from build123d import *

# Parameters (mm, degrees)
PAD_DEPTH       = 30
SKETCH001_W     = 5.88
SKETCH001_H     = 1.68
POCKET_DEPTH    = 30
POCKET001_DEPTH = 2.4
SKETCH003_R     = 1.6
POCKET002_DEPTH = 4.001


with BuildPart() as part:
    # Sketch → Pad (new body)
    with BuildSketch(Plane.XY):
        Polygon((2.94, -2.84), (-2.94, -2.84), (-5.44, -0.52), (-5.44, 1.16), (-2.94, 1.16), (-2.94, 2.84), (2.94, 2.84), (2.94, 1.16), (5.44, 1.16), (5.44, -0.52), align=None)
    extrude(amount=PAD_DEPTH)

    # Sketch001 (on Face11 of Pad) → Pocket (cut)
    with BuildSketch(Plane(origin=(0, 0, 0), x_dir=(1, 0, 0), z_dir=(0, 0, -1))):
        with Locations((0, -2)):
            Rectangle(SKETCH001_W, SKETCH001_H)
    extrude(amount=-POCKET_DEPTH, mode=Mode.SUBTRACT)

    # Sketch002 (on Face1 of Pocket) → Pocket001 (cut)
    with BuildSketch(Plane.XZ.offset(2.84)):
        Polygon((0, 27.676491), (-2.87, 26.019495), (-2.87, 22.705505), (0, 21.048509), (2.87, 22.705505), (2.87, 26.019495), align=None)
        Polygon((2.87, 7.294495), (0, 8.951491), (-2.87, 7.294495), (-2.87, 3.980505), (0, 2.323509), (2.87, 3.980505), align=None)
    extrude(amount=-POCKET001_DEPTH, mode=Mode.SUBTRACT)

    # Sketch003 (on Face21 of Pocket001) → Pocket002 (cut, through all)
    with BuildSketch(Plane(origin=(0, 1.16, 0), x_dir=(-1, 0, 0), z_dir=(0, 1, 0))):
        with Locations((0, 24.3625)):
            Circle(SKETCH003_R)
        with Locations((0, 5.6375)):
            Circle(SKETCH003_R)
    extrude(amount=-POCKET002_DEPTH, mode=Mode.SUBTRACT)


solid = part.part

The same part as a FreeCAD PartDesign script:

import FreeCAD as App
import Part
import Sketcher
Q = App.Units.Quantity

doc = App.newDocument("Part")
body = doc.addObject("PartDesign::Body", "Body")

# Sketch on XY plane
sketch1 = body.newObject("Sketcher::SketchObject", "Sketch")
sketch1.AttachmentSupport = (doc.getObject("XY_Plane"), [""])
sketch1.MapMode = "FlatFace"
sketch1.addGeometry(Part.LineSegment(App.Vector(-2.9, -2.8, 0), App.Vector(2.9, -2.8, 0)), False)
sketch1.addGeometry(Part.LineSegment(App.Vector(2.9, -2.8, 0), App.Vector(5.4, -0.5, 0)), False)
sketch1.addGeometry(Part.LineSegment(App.Vector(5.4, -0.5, 0), App.Vector(5.4, 1.2, 0)), False)
sketch1.addGeometry(Part.LineSegment(App.Vector(5.4, 1.2, 0), App.Vector(2.9, 1.2, 0)), False)
sketch1.addGeometry(Part.LineSegment(App.Vector(2.9, 1.2, 0), App.Vector(2.9, 2.8, 0)), False)
sketch1.addGeometry(Part.LineSegment(App.Vector(2.9, 2.8, 0), App.Vector(-2.9, 2.8, 0)), False)
sketch1.addGeometry(Part.LineSegment(App.Vector(-2.9, 2.8, 0), App.Vector(-2.9, 1.2, 0)), False)
sketch1.addGeometry(Part.LineSegment(App.Vector(-2.9, 1.2, 0), App.Vector(-5.4, 1.2, 0)), False)
sketch1.addGeometry(Part.LineSegment(App.Vector(-5.4, 1.2, 0), App.Vector(-5.4, -0.5, 0)), False)
sketch1.addGeometry(Part.LineSegment(App.Vector(-5.4, -0.5, 0), App.Vector(-2.9, -2.8, 0)), False)
sketch1.addConstraint(Sketcher.Constraint("Coincident", 0, 2, 1, 1))
sketch1.addConstraint(Sketcher.Constraint("Coincident", 1, 2, 2, 1))
sketch1.addConstraint(Sketcher.Constraint("Coincident", 2, 2, 3, 1))
sketch1.addConstraint(Sketcher.Constraint("Coincident", 3, 2, 4, 1))
sketch1.addConstraint(Sketcher.Constraint("Coincident", 4, 2, 5, 1))
sketch1.addConstraint(Sketcher.Constraint("Coincident", 5, 2, 6, 1))
sketch1.addConstraint(Sketcher.Constraint("Coincident", 6, 2, 7, 1))
sketch1.addConstraint(Sketcher.Constraint("Coincident", 7, 2, 8, 1))
sketch1.addConstraint(Sketcher.Constraint("Coincident", 8, 2, 9, 1))
sketch1.addConstraint(Sketcher.Constraint("Coincident", 9, 2, 0, 1))
sketch1.addConstraint(Sketcher.Constraint("Horizontal", 0))
sketch1.addConstraint(Sketcher.Constraint("Vertical", 2))
sketch1.addConstraint(Sketcher.Constraint("Horizontal", 3))
sketch1.addConstraint(Sketcher.Constraint("Vertical", 4))
sketch1.addConstraint(Sketcher.Constraint("Horizontal", 5))
sketch1.addConstraint(Sketcher.Constraint("Vertical", 6))
sketch1.addConstraint(Sketcher.Constraint("Horizontal", 7))
sketch1.addConstraint(Sketcher.Constraint("Vertical", 8))
sketch1.addConstraint(Sketcher.Constraint("Symmetric", 0, 2, 5, 2, -1, 1))
sketch1.addConstraint(Sketcher.Constraint("Symmetric", 3, 2, 6, 2, -2))
sketch1.addConstraint(Sketcher.Constraint("Symmetric", 1, 2, 8, 2, -2))
sketch1.addConstraint(Sketcher.Constraint("Vertical", 6, 2, 9, 2))
sketch1.addConstraint(Sketcher.Constraint("Equal", 2, 4))
sketch1.addConstraint(Sketcher.Constraint("DistanceX", 3, 2, 3, 1, Q("2.5 mm")))
sketch1.addConstraint(Sketcher.Constraint("DistanceY", 0, 2, 2, 2, Q("4 mm")))
sketch1.addConstraint(Sketcher.Constraint("DistanceX", 0, 1, 0, 2, Q("5.88 mm")))
sketch1.addConstraint(Sketcher.Constraint("DistanceY", 2, 1, 2, 2, Q("1.68 mm")))
pad1 = body.newObject("PartDesign::Pad", "Pad")
pad1.Profile = sketch1
pad1.Length = 30

# Sketch on XY plane
sketch2 = body.newObject("Sketcher::SketchObject", "Sketch001")
sketch2.AttachmentSupport = (doc.getObject("XY_Plane"), [""])
sketch2.MapMode = "FlatFace"
sketch2.addGeometry(Part.LineSegment(App.Vector(-2.9, 1.2, 0), App.Vector(-2.9, 2.8, 0)), False)
sketch2.addGeometry(Part.LineSegment(App.Vector(-2.9, 2.8, 0), App.Vector(2.9, 2.8, 0)), False)
sketch2.addGeometry(Part.LineSegment(App.Vector(2.9, 2.8, 0), App.Vector(2.9, 1.2, 0)), False)
sketch2.addGeometry(Part.LineSegment(App.Vector(2.9, 1.2, 0), App.Vector(-2.9, 1.2, 0)), False)
sketch2.addConstraint(Sketcher.Constraint("Coincident", 0, 2, 1, 1))
sketch2.addConstraint(Sketcher.Constraint("Coincident", 1, 2, 2, 1))
sketch2.addConstraint(Sketcher.Constraint("Coincident", 2, 2, 3, 1))
sketch2.addConstraint(Sketcher.Constraint("Coincident", 3, 2, 0, 1))
sketch2.addConstraint(Sketcher.Constraint("Vertical", 0))
sketch2.addConstraint(Sketcher.Constraint("Horizontal", 1))
sketch2.addConstraint(Sketcher.Constraint("Vertical", 2))
sketch2.addConstraint(Sketcher.Constraint("Horizontal", 3))
sketch2.addConstraint(Sketcher.Constraint("DistanceX", 1, 1, 1, 2, Q("5.88 mm")))
sketch2.addConstraint(Sketcher.Constraint("DistanceY", 0, 1, 0, 2, Q("1.68 mm")))
sketch2.addConstraint(Sketcher.Constraint("DistanceX", 0, 2, -1, 1, Q("2.94 mm")))
sketch2.addConstraint(Sketcher.Constraint("DistanceY", -1, 1, 0, 2, Q("2.84 mm")))
pocket1 = body.newObject("PartDesign::Pocket", "Pocket")
pocket1.Profile = sketch2
pocket1.Length = 30
pocket1.Reversed = True

# Sketch on XZ plane
sketch3 = body.newObject("Sketcher::SketchObject", "Sketch002")
sketch3.AttachmentSupport = (doc.getObject("XZ_Plane"), [""])
sketch3.MapMode = "FlatFace"
sketch3.AttachmentOffset = App.Placement(App.Vector(0, 0, 2.84), App.Rotation())
sketch3.addGeometry(Part.LineSegment(App.Vector(0, 27.7, 0), App.Vector(-2.9, 26, 0)), False)
sketch3.addGeometry(Part.LineSegment(App.Vector(-2.9, 26, 0), App.Vector(-2.9, 22.7, 0)), False)
sketch3.addGeometry(Part.LineSegment(App.Vector(-2.9, 22.7, 0), App.Vector(0, 21, 0)), False)
sketch3.addGeometry(Part.LineSegment(App.Vector(0, 21, 0), App.Vector(2.9, 22.7, 0)), False)
sketch3.addGeometry(Part.LineSegment(App.Vector(2.9, 22.7, 0), App.Vector(2.9, 26, 0)), False)
sketch3.addGeometry(Part.LineSegment(App.Vector(2.9, 26, 0), App.Vector(0, 27.7, 0)), False)
sketch3.addGeometry(Part.LineSegment(App.Vector(2.9, 7.3, 0), App.Vector(0, 9, 0)), False)
sketch3.addGeometry(Part.LineSegment(App.Vector(0, 9, 0), App.Vector(-2.9, 7.3, 0)), False)
sketch3.addGeometry(Part.LineSegment(App.Vector(-2.9, 7.3, 0), App.Vector(-2.9, 4, 0)), False)
sketch3.addGeometry(Part.LineSegment(App.Vector(-2.9, 4, 0), App.Vector(0, 2.3, 0)), False)
sketch3.addGeometry(Part.LineSegment(App.Vector(0, 2.3, 0), App.Vector(2.9, 4, 0)), False)
sketch3.addGeometry(Part.LineSegment(App.Vector(2.9, 4, 0), App.Vector(2.9, 7.3, 0)), False)
sketch3.addConstraint(Sketcher.Constraint("Coincident", 0, 2, 1, 1))
sketch3.addConstraint(Sketcher.Constraint("Coincident", 1, 2, 2, 1))
sketch3.addConstraint(Sketcher.Constraint("Coincident", 2, 2, 3, 1))
sketch3.addConstraint(Sketcher.Constraint("Coincident", 3, 2, 4, 1))
sketch3.addConstraint(Sketcher.Constraint("Coincident", 4, 2, 5, 1))
sketch3.addConstraint(Sketcher.Constraint("Coincident", 5, 2, 0, 1))
sketch3.addConstraint(Sketcher.Constraint("Coincident", 6, 2, 7, 1))
sketch3.addConstraint(Sketcher.Constraint("Coincident", 7, 2, 8, 1))
sketch3.addConstraint(Sketcher.Constraint("Coincident", 8, 2, 9, 1))
sketch3.addConstraint(Sketcher.Constraint("Coincident", 9, 2, 10, 1))
sketch3.addConstraint(Sketcher.Constraint("Coincident", 10, 2, 11, 1))
sketch3.addConstraint(Sketcher.Constraint("Coincident", 11, 2, 6, 1))
sketch3.addConstraint(Sketcher.Constraint("Vertical", 1))
sketch3.addConstraint(Sketcher.Constraint("Vertical", 4))
sketch3.addConstraint(Sketcher.Constraint("Vertical", 8))
sketch3.addConstraint(Sketcher.Constraint("Vertical", 11))
sketch3.addConstraint(Sketcher.Constraint("Symmetric", 1, 2, 3, 2, -2))
sketch3.addConstraint(Sketcher.Constraint("Symmetric", 8, 2, 10, 2, -2))
sketch3.addConstraint(Sketcher.Constraint("PointOnObject", 2, 2, -2))
sketch3.addConstraint(Sketcher.Constraint("PointOnObject", 5, 2, -2))
sketch3.addConstraint(Sketcher.Constraint("PointOnObject", 6, 2, -2))
sketch3.addConstraint(Sketcher.Constraint("PointOnObject", 9, 2, -2))
sketch3.addConstraint(Sketcher.Constraint("Parallel", 0, 3))
sketch3.addConstraint(Sketcher.Constraint("Parallel", 2, 5))
sketch3.addConstraint(Sketcher.Constraint("Parallel", 5, 6))
sketch3.addConstraint(Sketcher.Constraint("Parallel", 3, 7))
sketch3.addConstraint(Sketcher.Constraint("Parallel", 6, 9))
sketch3.addConstraint(Sketcher.Constraint("Vertical", 1, 2, 7, 2))
sketch3.addConstraint(Sketcher.Constraint("Equal", 4, 8))
sketch3.addConstraint(Sketcher.Constraint("Angle", 0, Q("-149.999989 deg")))
sketch3.addConstraint(Sketcher.Constraint("DistanceX", 0, 2, -1, 1, Q("2.87 mm")))
sketch3.addConstraint(Sketcher.Constraint("DistanceY", 7, 2, 0, 2, Q("18.725 mm")))
sketch3.addConstraint(Sketcher.Constraint("DistanceY", 1, 2, 1, 1, Q("3.31399 mm")))
sketch3.addConstraint(Sketcher.Constraint("DistanceY", -1, 1, 2, 2, Q("21.048509 mm")))
pocket2 = body.newObject("PartDesign::Pocket", "Pocket001")
pocket2.Profile = sketch3
pocket2.Length = 2.4

# Sketch on XZ plane
sketch4 = body.newObject("Sketcher::SketchObject", "Sketch003")
sketch4.AttachmentSupport = (doc.getObject("XZ_Plane"), [""])
sketch4.MapMode = "FlatFace"
sketch4.AttachmentOffset = App.Placement(App.Vector(0, 0, -1.16), App.Rotation())
sketch4.addGeometry(Part.Circle(App.Vector(0, 24.4, 0), App.Vector(0, 0, 1), 1.6), False)
sketch4.addGeometry(Part.Circle(App.Vector(0, 5.6, 0), App.Vector(0, 0, 1), 1.6), False)
sketch4.addConstraint(Sketcher.Constraint("Equal", 0, 1))
sketch4.addConstraint(Sketcher.Constraint("PointOnObject", 0, 3, -2))
sketch4.addConstraint(Sketcher.Constraint("PointOnObject", 1, 3, -2))
sketch4.addConstraint(Sketcher.Constraint("Diameter", 0, Q("3.2 mm")))
sketch4.addConstraint(Sketcher.Constraint("DistanceY", 1, 3, 0, 3, Q("18.725 mm")))
sketch4.addConstraint(Sketcher.Constraint("DistanceY", -1, 1, 0, 3, Q("24.3625 mm")))
pocket3 = body.newObject("PartDesign::Pocket", "Pocket002")
pocket3.Profile = sketch4
pocket3.Type = "ThroughAll"
pocket3.Reversed = True

doc.recompute()
